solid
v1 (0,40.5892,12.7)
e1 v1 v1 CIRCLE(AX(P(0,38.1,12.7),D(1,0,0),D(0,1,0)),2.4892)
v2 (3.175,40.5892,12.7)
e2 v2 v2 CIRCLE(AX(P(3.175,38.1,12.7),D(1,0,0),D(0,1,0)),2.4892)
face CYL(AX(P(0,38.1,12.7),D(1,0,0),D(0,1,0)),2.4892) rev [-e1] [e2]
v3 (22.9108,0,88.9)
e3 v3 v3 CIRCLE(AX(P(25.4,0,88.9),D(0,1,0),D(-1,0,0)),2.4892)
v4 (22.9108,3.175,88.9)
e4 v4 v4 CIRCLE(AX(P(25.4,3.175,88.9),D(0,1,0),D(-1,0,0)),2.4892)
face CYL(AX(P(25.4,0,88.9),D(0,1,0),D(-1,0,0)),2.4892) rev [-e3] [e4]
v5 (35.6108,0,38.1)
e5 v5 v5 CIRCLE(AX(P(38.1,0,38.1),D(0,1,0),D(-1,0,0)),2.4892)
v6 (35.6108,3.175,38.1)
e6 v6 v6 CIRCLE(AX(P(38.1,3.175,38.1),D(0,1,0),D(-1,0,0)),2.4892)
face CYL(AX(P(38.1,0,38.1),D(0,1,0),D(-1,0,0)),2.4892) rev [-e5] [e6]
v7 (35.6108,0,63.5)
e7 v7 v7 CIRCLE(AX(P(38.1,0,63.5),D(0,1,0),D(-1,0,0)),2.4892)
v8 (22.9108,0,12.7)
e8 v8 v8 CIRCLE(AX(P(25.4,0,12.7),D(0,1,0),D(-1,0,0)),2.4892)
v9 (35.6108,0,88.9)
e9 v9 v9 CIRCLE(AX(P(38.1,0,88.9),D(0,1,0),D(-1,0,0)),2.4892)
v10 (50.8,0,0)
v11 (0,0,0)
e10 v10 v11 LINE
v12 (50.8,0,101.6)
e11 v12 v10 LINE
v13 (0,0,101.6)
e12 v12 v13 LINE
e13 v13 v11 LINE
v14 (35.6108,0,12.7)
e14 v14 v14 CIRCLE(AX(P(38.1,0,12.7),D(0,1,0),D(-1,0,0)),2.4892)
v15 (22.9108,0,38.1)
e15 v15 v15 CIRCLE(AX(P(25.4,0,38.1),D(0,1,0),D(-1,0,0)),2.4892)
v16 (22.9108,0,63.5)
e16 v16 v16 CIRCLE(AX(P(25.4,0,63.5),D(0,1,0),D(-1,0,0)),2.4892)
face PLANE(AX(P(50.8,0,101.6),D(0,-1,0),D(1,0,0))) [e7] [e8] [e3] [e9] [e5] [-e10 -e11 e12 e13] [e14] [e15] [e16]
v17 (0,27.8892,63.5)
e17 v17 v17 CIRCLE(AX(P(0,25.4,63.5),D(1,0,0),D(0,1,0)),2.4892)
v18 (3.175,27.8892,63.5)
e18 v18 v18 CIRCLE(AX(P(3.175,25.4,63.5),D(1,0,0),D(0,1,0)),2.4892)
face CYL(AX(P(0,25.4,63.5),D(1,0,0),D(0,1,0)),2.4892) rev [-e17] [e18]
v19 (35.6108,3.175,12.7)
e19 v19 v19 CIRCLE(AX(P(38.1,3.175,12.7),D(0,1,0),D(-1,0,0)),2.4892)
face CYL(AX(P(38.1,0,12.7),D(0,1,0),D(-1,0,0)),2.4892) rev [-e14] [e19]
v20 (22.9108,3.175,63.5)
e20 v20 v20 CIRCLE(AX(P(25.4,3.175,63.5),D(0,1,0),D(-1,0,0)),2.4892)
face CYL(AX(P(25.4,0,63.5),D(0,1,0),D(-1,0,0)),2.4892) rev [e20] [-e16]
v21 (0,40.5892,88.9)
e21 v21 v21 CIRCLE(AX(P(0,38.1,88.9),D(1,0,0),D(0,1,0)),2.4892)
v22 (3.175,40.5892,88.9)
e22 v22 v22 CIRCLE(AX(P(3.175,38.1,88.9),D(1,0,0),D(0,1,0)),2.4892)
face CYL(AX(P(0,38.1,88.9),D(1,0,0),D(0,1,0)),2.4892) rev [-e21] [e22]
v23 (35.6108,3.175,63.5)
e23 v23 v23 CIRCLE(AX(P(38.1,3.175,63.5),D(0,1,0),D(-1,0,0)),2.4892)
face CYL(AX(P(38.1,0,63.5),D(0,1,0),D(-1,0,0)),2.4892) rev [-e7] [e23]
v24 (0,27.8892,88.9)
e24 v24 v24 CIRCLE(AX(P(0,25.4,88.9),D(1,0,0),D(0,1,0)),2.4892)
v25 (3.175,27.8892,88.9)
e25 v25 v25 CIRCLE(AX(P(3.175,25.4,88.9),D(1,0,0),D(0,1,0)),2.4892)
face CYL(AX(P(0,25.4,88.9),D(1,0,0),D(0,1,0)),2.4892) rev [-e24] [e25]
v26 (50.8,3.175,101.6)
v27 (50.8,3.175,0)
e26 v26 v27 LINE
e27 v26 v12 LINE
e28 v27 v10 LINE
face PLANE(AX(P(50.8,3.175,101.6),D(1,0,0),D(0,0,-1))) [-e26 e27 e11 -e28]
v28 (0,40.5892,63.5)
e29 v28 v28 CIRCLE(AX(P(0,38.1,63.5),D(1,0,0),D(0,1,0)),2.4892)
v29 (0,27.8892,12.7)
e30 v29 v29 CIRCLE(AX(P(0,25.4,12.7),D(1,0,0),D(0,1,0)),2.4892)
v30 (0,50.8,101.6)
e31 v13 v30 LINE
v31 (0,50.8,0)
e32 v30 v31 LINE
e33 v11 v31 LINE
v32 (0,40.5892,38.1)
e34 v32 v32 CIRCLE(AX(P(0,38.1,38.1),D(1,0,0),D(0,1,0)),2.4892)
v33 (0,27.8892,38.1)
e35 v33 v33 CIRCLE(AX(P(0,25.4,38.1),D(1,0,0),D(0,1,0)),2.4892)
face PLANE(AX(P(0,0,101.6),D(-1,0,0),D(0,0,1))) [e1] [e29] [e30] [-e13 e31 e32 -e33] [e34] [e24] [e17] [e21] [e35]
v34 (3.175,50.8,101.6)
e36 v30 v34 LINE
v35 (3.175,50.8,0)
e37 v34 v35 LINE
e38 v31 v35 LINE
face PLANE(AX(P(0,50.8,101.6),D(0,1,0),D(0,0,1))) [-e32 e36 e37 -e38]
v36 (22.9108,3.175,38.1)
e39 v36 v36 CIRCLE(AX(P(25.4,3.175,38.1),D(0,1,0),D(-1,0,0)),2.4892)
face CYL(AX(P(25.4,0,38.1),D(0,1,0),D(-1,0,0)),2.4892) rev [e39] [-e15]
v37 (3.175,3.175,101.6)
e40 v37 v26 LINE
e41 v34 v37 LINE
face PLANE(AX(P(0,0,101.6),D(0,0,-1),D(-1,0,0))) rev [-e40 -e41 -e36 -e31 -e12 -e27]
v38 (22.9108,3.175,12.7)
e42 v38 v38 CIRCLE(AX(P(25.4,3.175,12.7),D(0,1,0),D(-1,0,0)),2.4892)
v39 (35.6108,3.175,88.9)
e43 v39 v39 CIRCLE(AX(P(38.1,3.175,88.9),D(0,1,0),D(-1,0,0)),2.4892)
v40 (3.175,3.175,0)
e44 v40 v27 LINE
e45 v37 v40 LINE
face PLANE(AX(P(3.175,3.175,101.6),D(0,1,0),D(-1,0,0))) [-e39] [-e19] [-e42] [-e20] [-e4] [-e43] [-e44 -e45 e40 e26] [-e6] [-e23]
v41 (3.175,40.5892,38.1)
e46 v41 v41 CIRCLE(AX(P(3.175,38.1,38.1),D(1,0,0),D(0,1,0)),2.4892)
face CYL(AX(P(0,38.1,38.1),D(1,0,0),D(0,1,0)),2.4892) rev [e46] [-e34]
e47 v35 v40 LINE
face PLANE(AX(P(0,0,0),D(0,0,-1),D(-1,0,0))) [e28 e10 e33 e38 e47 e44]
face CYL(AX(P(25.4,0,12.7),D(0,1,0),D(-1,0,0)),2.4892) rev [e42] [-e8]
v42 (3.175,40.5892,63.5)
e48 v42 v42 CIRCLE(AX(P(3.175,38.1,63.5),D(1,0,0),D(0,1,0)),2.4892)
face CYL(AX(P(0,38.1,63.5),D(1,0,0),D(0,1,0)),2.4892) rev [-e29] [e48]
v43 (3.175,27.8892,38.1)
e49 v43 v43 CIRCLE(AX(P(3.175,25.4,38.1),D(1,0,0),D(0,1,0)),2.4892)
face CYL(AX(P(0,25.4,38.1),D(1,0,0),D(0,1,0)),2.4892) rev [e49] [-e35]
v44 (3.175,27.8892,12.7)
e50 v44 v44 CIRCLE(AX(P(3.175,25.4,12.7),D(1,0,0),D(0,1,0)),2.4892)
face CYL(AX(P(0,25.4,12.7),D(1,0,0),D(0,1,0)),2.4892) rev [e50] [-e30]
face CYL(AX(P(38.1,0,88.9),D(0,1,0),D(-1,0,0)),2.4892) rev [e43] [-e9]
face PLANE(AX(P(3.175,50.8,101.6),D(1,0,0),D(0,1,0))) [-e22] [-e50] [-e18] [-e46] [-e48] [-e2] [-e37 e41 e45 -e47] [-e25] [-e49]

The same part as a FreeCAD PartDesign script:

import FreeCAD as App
import Part
import Sketcher
Q = App.Units.Quantity


def add_polygon(sketch, points):
    """Adds a closed chain of lines whose ends are joined by coincident constraints."""
    first, n = sketch.GeometryCount, len(points)
    for a, b in zip(points, points[1:] + points[:1]):
        sketch.addGeometry(Part.LineSegment(App.Vector(*a, 0), App.Vector(*b, 0)), False)
    for i in range(n):
        sketch.addConstraint(Sketcher.Constraint("Coincident", first + i, 2, first + (i + 1) % n, 1))

doc = App.newDocument("Part")
body = doc.addObject("PartDesign::Body", "Body")

# Sketch on XY plane
sketch1 = body.newObject("Sketcher::SketchObject", "Sketch")
sketch1.AttachmentSupport = (doc.getObject("XY_Plane"), [""])
sketch1.MapMode = "FlatFace"
add_polygon(sketch1, [(0, 50.8), (0, 0), (50.8, 0), (50.8, 3.2), (3.2, 3.2), (3.2, 50.8)])  # lines 0-5
sketch1.addConstraint(Sketcher.Constraint("Vertical", 0))
sketch1.addConstraint(Sketcher.Constraint("Horizontal", 1))
sketch1.addConstraint(Sketcher.Constraint("Vertical", 2))
sketch1.addConstraint(Sketcher.Constraint("Horizontal", 3))
sketch1.addConstraint(Sketcher.Constraint("Vertical", 4))
sketch1.addConstraint(Sketcher.Constraint("Horizontal", 5))
sketch1.addConstraint(Sketcher.Constraint("Coincident", 0, 2, -1, 1))
sketch1.addConstraint(Sketcher.Constraint("Equal", 1, 0))
sketch1.addConstraint(Sketcher.Constraint("Equal", 5, 2))
sketch1.addConstraint(Sketcher.Constraint("DistanceX", 1, 1, 1, 2, Q("2 in")))
sketch1.addConstraint(Sketcher.Constraint("DistanceX", 3, 2, 3, 1, Q("1.875 in")))
pad1 = body.newObject("PartDesign::Pad", "Pad")
pad1.Profile = sketch1
pad1.Length = Q("4 in")

# Sketch on XZ plane
sketch2 = body.newObject("Sketcher::SketchObject", "Sketch001")
sketch2.AttachmentSupport = (doc.getObject("XZ_Plane"), [""])
sketch2.MapMode = "FlatFace"
sketch2.AttachmentOffset = App.Placement(App.Vector(0, 0, -0.125 * 25.4), App.Rotation())
sketch2.addGeometry(Part.Circle(App.Vector(25.4, 12.7, 0), App.Vector(0, 0, 1), 2.5), False)
sketch2.addGeometry(Part.Circle(App.Vector(38.1, 12.7, 0), App.Vector(0, 0, 1), 2.5), False)
sketch2.addGeometry(Part.Circle(App.Vector(38.1, 38.1, 0), App.Vector(0, 0, 1), 2.5), False)
sketch2.addGeometry(Part.Circle(App.Vector(38.1, 63.5, 0), App.Vector(0, 0, 1), 2.5), False)
sketch2.addGeometry(Part.Circle(App.Vector(38.1, 88.9, 0), App.Vector(0, 0, 1), 2.5), False)
sketch2.addGeometry(Part.Circle(App.Vector(25.4, 38.1, 0), App.Vector(0, 0, 1), 2.5), False)
sketch2.addGeometry(Part.Circle(App.Vector(25.4, 63.5, 0), App.Vector(0, 0, 1), 2.5), False)
sketch2.addGeometry(Part.Circle(App.Vector(25.4, 88.9, 0), App.Vector(0, 0, 1), 2.5), False)
sketch2.addConstraint(Sketcher.Constraint("Equal", 0, 1))
sketch2.addConstraint(Sketcher.Constraint("Equal", 1, 2))
sketch2.addConstraint(Sketcher.Constraint("Equal", 2, 3))
sketch2.addConstraint(Sketcher.Constraint("Equal", 3, 4))
sketch2.addConstraint(Sketcher.Constraint("Equal", 4, 5))
sketch2.addConstraint(Sketcher.Constraint("Equal", 5, 6))
sketch2.addConstraint(Sketcher.Constraint("Equal", 6, 7))
sketch2.addConstraint(Sketcher.Constraint("Horizontal", 0, 3, 1, 3))
sketch2.addConstraint(Sketcher.Constraint("Horizontal", 2, 3, 5, 3))
sketch2.addConstraint(Sketcher.Constraint("Horizontal", 3, 3, 6, 3))
sketch2.addConstraint(Sketcher.Constraint("Horizontal", 4, 3, 7, 3))
sketch2.addConstraint(Sketcher.Constraint("Vertical", 1, 3, 2, 3))
sketch2.addConstraint(Sketcher.Constraint("Vertical", 2, 3, 3, 3))
sketch2.addConstraint(Sketcher.Constraint("Vertical", 3, 3, 4, 3))
sketch2.addConstraint(Sketcher.Constraint("Vertical", 0, 3, 5, 3))
sketch2.addConstraint(Sketcher.Constraint("Vertical", 5, 3, 6, 3))
sketch2.addConstraint(Sketcher.Constraint("Vertical", 6, 3, 7, 3))
sketch2.addConstraint(Sketcher.Constraint("Diameter", 0, Q("0.196 in")))
sketch2.addConstraint(Sketcher.Constraint("DistanceX", -1, 1, 0, 3, Q("1 in")))
sketch2.addConstraint(Sketcher.Constraint("DistanceY", 1, 3, 2, 3, Q("1 in")))
sketch2.addConstraint(Sketcher.Constraint("DistanceY", 2, 3, 3, 3, Q("1 in")))
sketch2.addConstraint(Sketcher.Constraint("DistanceY", 3, 3, 4, 3, Q("1 in")))
sketch2.addConstraint(Sketcher.Constraint("DistanceY", -1, 1, 0, 3, Q("0.5 in")))
sketch2.addConstraint(Sketcher.Constraint("DistanceX", -1, 1, 1, 3, Q("1.5 in")))
pocket1 = body.newObject("PartDesign::Pocket", "Pocket")
pocket1.Profile = sketch2
pocket1.Type = "ThroughAll"
pocket1.Reversed = True

# Sketch on YZ plane
sketch3 = body.newObject("Sketcher::SketchObject", "Sketch002")
sketch3.AttachmentSupport = (doc.getObject("YZ_Plane"), [""])
sketch3.MapMode = "FlatFace"
sketch3.AttachmentOffset = App.Placement(App.Vector(0, 0, 0.125 * 25.4), App.Rotation())
sketch3.addGeometry(Part.Circle(App.Vector(25.4, 12.7, 0), App.Vector(0, 0, 1), 2.5), False)
sketch3.addGeometry(Part.Circle(App.Vector(25.4, 38.1, 0), App.Vector(0, 0, 1), 2.5), False)
sketch3.addGeometry(Part.Circle(App.Vector(25.4, 63.5, 0), App.Vector(0, 0, 1), 2.5), False)
sketch3.addGeometry(Part.Circle(App.Vector(25.4, 88.9, 0), App.Vector(0, 0, 1), 2.5), False)
sketch3.addGeometry(Part.Circle(App.Vector(38.1, 38.1, 0), App.Vector(0, 0, 1), 2.5), False)
sketch3.addGeometry(Part.Circle(App.Vector(38.1, 63.5, 0), App.Vector(0, 0, 1), 2.5), False)
sketch3.addGeometry(Part.Circle(App.Vector(38.1, 88.9, 0), App.Vector(0, 0, 1), 2.5), False)
sketch3.addGeometry(Part.Circle(App.Vector(38.1, 12.7, 0), App.Vector(0, 0, 1), 2.5), False)
sketch3.addConstraint(Sketcher.Constraint("Equal", 0, 1))
sketch3.addConstraint(Sketcher.Constraint("Equal", 1, 2))
sketch3.addConstraint(Sketcher.Constraint("Equal", 2, 3))
sketch3.addConstraint(Sketcher.Constraint("Equal", 3, 4))
sketch3.addConstraint(Sketcher.Constraint("Equal", 4, 5))
sketch3.addConstraint(Sketcher.Constraint("Equal", 5, 6))
sketch3.addConstraint(Sketcher.Constraint("Equal", 6, 7))
sketch3.addConstraint(Sketcher.Constraint("Horizontal", 1, 3, 4, 3))
sketch3.addConstraint(Sketcher.Constraint("Horizontal", 2, 3, 5, 3))
sketch3.addConstraint(Sketcher.Constraint("Horizontal", 3, 3, 6, 3))
sketch3.addConstraint(Sketcher.Constraint("Horizontal", 0, 3, 7, 3))
sketch3.addConstraint(Sketcher.Constraint("Vertical", 0, 3, 1, 3))
sketch3.addConstraint(Sketcher.Constraint("Vertical", 1, 3, 2, 3))
sketch3.addConstraint(Sketcher.Constraint("Vertical", 2, 3, 3, 3))
sketch3.addConstraint(Sketcher.Constraint("Vertical", 4, 3, 5, 3))
sketch3.addConstraint(Sketcher.Constraint("Vertical", 5, 3, 6, 3))
sketch3.addConstraint(Sketcher.Constraint("Vertical", 6, 3, 7, 3))
sketch3.addConstraint(Sketcher.Constraint("Diameter", 0, Q("0.196 in")))
sketch3.addConstraint(Sketcher.Constraint("DistanceX", -1, 1, 0, 3, Q("1 in")))
sketch3.addConstraint(Sketcher.Constraint("DistanceY", 0, 3, 1, 3, Q("1 in")))
sketch3.addConstraint(Sketcher.Constraint("DistanceY", 1, 3, 2, 3, Q("1 in")))
sketch3.addConstraint(Sketcher.Constraint("DistanceY", 2, 3, 3, 3, Q("1 in")))
sketch3.addConstraint(Sketcher.Constraint("DistanceY", -1, 1, 0, 3, Q("0.5 in")))
sketch3.addConstraint(Sketcher.Constraint("DistanceX", -1, 1, 4, 3, Q("1.5 in")))
pocket2 = body.newObject("PartDesign::Pocket", "Pocket001")
pocket2.Profile = sketch3
pocket2.Type = "ThroughAll"

doc.recompute()
